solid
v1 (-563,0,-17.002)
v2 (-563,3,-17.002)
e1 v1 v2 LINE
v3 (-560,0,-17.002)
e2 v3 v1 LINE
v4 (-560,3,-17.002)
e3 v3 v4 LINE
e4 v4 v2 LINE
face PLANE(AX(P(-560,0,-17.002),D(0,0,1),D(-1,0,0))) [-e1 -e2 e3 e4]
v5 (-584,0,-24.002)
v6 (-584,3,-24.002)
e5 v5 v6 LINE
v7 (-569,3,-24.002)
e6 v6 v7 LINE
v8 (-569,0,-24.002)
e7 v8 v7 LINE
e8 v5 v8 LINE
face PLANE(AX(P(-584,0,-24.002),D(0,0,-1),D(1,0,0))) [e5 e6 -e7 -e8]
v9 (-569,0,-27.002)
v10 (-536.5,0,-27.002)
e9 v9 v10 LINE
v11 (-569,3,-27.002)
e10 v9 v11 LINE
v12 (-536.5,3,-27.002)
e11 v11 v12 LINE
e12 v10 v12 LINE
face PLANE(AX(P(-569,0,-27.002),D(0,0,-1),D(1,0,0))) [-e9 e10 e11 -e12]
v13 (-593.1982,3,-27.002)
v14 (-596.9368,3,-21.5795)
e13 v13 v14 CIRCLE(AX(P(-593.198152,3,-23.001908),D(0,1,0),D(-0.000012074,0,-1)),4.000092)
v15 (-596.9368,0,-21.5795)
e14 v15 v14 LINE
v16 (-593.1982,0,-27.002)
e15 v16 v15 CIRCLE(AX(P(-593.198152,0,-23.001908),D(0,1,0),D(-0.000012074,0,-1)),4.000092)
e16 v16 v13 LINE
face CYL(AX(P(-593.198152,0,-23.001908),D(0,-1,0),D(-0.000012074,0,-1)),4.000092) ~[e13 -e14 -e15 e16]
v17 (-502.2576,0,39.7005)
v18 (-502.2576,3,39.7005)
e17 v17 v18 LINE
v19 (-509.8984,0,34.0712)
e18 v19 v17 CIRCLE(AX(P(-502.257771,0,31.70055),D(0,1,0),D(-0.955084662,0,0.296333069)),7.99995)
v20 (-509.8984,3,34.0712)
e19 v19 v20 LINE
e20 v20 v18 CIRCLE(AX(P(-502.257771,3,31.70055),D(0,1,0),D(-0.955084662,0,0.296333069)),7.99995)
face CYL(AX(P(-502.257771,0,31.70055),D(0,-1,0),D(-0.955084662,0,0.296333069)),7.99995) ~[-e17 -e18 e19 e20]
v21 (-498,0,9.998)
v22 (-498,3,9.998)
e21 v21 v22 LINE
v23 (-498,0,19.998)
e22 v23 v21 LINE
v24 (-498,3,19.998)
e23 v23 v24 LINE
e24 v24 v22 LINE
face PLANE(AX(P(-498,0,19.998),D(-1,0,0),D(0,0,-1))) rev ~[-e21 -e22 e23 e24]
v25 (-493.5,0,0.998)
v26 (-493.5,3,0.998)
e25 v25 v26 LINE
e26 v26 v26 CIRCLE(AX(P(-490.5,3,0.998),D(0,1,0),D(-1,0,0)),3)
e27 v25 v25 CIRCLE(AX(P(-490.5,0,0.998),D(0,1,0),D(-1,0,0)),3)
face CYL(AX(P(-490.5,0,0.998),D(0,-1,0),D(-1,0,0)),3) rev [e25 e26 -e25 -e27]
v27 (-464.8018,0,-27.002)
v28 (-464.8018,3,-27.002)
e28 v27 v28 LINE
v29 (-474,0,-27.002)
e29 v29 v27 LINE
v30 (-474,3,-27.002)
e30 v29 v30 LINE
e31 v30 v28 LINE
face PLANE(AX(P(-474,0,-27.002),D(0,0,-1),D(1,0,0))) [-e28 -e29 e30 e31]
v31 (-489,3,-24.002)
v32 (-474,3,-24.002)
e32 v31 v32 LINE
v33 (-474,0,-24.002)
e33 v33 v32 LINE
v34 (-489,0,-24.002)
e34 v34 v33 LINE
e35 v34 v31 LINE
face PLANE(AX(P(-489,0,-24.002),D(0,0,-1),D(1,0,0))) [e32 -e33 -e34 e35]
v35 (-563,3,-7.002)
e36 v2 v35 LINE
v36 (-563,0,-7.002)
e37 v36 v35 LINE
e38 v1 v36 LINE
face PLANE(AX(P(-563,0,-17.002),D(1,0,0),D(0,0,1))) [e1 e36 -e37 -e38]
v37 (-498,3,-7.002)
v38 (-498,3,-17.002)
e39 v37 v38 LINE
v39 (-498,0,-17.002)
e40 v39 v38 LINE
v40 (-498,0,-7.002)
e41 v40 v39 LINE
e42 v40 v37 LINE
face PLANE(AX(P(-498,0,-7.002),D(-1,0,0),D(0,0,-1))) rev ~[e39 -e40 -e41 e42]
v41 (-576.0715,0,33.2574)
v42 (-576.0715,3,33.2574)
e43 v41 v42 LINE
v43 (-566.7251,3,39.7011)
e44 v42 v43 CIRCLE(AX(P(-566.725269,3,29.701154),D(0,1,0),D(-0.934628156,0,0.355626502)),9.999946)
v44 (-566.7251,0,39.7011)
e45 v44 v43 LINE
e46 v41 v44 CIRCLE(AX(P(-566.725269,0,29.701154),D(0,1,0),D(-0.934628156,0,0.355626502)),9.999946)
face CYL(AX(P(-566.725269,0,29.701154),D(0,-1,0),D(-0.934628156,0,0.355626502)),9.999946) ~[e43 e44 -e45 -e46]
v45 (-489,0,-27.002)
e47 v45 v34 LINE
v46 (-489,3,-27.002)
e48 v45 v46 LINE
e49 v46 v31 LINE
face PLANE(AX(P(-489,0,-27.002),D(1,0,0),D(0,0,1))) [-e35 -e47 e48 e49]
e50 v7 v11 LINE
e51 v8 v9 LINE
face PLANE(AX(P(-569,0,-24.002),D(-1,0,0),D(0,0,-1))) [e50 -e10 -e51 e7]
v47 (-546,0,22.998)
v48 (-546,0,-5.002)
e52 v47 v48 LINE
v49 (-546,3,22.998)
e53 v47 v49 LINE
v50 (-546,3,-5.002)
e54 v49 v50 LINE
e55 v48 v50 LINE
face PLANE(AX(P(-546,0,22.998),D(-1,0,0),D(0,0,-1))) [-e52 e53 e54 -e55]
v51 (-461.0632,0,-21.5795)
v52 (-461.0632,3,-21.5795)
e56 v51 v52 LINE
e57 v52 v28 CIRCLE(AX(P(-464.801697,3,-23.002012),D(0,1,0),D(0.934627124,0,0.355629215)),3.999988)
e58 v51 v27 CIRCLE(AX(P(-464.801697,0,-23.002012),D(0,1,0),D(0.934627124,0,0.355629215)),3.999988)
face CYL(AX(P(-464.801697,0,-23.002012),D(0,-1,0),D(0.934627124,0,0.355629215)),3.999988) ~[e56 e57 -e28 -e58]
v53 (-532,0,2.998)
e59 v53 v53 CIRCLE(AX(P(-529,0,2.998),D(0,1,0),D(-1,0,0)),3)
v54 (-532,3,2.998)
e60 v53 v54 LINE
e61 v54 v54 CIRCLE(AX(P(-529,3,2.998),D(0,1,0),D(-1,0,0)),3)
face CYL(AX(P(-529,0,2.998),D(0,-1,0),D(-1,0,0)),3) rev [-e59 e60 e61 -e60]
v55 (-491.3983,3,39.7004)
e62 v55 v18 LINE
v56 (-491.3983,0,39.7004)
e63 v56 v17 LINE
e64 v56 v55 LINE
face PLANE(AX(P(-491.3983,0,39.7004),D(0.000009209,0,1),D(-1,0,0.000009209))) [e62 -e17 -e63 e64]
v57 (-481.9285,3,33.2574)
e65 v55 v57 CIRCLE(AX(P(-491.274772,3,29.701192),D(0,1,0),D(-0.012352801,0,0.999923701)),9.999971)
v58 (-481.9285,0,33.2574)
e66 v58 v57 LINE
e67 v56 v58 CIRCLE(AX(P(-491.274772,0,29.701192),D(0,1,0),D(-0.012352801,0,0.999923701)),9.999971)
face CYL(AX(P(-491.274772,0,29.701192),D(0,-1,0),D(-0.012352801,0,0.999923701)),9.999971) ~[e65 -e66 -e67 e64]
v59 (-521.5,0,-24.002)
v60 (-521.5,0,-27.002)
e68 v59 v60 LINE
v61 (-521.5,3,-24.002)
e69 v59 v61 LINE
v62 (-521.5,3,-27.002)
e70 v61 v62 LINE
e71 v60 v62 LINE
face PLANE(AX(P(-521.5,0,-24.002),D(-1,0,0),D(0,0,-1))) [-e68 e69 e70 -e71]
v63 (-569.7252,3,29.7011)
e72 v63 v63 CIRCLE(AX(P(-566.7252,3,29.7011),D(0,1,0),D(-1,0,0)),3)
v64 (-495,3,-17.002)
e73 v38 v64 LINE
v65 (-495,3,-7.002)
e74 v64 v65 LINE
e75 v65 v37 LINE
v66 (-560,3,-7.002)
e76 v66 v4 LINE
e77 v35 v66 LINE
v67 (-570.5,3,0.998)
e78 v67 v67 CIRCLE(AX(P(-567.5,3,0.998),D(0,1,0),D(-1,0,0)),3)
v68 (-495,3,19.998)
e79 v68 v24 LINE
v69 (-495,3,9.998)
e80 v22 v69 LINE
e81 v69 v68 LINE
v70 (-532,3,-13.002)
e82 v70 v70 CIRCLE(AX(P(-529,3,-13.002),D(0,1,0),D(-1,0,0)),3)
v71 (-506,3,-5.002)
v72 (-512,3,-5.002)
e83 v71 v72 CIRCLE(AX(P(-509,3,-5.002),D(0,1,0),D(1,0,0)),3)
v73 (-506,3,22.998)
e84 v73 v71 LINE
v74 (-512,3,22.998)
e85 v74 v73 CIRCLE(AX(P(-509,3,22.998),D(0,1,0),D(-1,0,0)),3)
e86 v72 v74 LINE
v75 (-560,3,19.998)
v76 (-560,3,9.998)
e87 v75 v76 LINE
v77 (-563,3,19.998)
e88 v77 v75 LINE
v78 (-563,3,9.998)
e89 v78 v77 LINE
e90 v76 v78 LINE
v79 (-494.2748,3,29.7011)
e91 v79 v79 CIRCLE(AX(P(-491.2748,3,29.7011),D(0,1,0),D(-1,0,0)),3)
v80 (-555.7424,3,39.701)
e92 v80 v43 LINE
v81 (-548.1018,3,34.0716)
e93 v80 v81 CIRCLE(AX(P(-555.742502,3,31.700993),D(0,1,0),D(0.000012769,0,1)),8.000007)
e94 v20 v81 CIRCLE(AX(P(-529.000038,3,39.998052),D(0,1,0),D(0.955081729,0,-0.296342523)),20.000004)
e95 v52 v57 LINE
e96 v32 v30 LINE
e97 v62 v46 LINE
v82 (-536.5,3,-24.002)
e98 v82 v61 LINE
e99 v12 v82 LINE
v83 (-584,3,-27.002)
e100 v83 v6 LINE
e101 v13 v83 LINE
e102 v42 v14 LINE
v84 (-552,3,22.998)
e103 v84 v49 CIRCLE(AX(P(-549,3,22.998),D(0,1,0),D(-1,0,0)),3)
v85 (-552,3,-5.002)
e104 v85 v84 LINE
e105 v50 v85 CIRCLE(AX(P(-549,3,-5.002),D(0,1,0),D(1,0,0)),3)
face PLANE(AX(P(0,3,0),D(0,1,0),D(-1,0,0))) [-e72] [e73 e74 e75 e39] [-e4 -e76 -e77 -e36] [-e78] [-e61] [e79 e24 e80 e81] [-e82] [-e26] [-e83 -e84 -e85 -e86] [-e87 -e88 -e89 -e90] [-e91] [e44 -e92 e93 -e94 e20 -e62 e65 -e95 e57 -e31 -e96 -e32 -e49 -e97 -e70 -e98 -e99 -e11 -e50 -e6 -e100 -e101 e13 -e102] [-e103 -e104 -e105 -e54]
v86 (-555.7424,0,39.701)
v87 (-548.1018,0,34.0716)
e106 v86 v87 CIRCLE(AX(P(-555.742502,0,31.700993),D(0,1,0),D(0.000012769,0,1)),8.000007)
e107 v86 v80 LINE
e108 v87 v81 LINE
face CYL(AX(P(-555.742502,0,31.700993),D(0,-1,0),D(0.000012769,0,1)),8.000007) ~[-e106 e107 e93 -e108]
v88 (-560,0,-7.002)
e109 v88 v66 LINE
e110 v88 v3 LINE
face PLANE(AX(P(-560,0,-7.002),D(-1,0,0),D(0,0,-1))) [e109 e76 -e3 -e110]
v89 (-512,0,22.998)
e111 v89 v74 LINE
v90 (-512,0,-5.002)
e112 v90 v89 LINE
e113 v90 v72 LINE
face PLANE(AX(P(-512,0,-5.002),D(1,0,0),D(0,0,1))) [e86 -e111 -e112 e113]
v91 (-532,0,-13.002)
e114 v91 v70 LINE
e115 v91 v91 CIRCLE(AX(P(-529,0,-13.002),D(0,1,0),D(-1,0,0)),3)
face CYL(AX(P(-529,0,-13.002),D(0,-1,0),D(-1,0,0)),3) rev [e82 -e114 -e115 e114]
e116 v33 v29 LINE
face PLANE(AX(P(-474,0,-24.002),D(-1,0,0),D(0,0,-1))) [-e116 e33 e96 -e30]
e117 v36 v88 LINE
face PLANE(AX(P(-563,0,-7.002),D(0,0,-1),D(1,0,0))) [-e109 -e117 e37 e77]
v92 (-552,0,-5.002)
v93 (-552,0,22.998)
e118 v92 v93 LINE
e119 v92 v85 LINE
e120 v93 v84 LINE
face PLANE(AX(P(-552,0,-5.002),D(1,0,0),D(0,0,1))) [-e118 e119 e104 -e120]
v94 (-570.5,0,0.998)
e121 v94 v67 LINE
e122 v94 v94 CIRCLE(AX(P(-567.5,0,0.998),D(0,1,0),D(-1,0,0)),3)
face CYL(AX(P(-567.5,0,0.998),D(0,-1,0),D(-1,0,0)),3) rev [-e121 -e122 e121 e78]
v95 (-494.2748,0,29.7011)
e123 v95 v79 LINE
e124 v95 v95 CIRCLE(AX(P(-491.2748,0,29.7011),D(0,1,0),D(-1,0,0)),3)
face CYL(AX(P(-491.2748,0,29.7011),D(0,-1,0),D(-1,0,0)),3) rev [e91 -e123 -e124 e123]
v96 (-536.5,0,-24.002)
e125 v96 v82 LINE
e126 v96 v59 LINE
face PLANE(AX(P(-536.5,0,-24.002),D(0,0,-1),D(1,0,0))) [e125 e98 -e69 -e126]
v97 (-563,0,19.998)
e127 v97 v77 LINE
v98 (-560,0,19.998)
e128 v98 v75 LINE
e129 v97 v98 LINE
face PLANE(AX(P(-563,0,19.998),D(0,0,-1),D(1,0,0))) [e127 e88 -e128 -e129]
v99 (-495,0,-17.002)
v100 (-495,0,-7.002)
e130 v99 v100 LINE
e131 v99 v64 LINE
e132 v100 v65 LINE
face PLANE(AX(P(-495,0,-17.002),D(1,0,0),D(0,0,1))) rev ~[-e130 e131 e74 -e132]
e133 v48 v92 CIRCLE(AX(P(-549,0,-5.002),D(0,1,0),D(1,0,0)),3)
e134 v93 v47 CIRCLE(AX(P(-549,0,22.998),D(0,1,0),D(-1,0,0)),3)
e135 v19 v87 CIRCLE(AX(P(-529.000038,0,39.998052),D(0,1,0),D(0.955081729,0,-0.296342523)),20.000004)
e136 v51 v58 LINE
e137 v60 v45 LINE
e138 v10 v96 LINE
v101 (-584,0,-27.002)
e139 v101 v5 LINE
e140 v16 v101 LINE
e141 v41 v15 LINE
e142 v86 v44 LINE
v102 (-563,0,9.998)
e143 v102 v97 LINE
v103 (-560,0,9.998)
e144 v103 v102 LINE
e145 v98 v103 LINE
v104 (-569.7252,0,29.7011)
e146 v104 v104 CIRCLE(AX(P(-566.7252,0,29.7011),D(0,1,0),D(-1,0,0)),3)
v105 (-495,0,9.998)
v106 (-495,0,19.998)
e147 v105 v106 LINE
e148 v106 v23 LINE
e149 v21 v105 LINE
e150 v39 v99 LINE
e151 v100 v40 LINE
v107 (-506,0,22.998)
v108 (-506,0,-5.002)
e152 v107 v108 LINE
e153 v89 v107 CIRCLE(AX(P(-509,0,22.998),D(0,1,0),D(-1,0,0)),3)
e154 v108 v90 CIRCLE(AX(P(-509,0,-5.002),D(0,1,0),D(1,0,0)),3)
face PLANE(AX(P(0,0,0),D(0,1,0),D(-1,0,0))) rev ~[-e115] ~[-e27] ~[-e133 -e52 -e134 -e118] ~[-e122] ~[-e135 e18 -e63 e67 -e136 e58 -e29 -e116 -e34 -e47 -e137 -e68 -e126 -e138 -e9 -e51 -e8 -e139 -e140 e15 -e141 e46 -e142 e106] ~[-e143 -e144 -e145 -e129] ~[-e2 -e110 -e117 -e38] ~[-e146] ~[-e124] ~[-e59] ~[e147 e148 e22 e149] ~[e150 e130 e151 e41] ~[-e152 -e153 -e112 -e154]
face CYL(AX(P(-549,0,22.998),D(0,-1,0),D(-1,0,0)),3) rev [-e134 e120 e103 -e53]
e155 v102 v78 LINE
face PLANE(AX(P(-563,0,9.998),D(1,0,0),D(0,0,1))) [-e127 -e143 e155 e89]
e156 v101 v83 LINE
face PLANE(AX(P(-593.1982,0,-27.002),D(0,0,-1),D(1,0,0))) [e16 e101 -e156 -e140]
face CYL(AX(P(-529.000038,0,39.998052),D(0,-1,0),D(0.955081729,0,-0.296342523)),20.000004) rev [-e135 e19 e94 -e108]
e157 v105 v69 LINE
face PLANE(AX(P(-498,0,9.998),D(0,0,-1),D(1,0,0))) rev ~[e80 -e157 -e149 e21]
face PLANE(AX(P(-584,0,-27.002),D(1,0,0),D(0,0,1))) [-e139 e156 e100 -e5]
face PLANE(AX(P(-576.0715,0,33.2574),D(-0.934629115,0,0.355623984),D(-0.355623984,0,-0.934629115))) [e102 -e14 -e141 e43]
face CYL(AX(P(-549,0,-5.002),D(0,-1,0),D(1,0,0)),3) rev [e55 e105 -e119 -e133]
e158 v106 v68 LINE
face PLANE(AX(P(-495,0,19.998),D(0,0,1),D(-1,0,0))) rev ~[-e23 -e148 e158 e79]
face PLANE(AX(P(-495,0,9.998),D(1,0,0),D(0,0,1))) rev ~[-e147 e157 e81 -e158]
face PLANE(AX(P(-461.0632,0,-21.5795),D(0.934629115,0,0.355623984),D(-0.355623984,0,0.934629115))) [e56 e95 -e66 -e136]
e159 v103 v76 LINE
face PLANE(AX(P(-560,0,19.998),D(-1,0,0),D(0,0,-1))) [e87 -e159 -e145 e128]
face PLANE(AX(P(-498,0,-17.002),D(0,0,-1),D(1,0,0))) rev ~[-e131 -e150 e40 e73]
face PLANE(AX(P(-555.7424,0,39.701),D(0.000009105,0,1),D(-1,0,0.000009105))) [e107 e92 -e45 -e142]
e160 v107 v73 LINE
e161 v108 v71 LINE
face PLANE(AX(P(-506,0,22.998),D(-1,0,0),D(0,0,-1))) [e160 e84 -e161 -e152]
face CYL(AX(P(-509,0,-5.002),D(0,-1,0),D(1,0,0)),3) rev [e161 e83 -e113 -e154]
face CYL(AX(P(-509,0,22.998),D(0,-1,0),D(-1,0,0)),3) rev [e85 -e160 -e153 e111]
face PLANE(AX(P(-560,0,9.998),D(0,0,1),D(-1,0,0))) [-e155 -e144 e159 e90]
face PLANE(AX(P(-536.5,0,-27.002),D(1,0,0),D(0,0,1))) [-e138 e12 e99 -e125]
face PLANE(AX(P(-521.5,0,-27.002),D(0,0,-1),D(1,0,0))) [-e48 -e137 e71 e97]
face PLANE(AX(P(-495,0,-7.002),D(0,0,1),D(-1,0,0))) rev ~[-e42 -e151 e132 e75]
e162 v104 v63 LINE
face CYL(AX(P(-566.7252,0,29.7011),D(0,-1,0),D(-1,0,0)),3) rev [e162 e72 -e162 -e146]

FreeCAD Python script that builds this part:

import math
import FreeCAD as App
import Part
import Sketcher

doc = App.newDocument("Part")
body = doc.addObject("PartDesign::Body", "Body")

sketch1 = doc.addObject("Sketcher::SketchObject", "Sketch")
body.addObject(sketch1)
sketch1.AttachmentSupport = (doc.XZ_Plane, [""])
sketch1.MapMode = "FlatFace"
sketch1.addGeometry([
    Part.LineSegment(App.Vector(-502.2576, 39.7005, 0), App.Vector(-491.3983, 39.7004, 0)),
    Part.ArcOfCircle(Part.Circle(App.Vector(-491.2748, 29.7011, 0), App.Vector(0, 0, 1), 10.000063), math.radians(20.831996), math.radians(90.707616)),
    Part.LineSegment(App.Vector(-481.9285, 33.2574, 0), App.Vector(-461.0632, -21.5795, 0)),
    Part.ArcOfCircle(Part.Circle(App.Vector(-464.8018, -23.002, 0), App.Vector(0, 0, 1), 4.00008), math.radians(-90), math.radians(20.831321)),
    Part.LineSegment(App.Vector(-464.8018, -27.002, 0), App.Vector(-474, -27.002, 0)),
    Part.LineSegment(App.Vector(-474, -27.002, 0), App.Vector(-474, -24.002, 0)),
    Part.LineSegment(App.Vector(-474, -24.002, 0), App.Vector(-489, -24.002, 0)),
    Part.LineSegment(App.Vector(-489, -24.002, 0), App.Vector(-489, -27.002, 0)),
    Part.LineSegment(App.Vector(-489, -27.002, 0), App.Vector(-521.5, -27.002, 0)),
    Part.LineSegment(App.Vector(-521.5, -27.002, 0), App.Vector(-521.5, -24.002, 0)),
    Part.LineSegment(App.Vector(-521.5, -24.002, 0), App.Vector(-536.5, -24.002, 0)),
    Part.LineSegment(App.Vector(-536.5, -24.002, 0), App.Vector(-536.5, -27.002, 0)),
    Part.LineSegment(App.Vector(-536.5, -27.002, 0), App.Vector(-569, -27.002, 0)),
    Part.LineSegment(App.Vector(-569, -27.002, 0), App.Vector(-569, -24.002, 0)),
    Part.LineSegment(App.Vector(-569, -24.002, 0), App.Vector(-584, -24.002, 0)),
    Part.LineSegment(App.Vector(-584, -24.002, 0), App.Vector(-584, -27.002, 0)),
    Part.LineSegment(App.Vector(-584, -27.002, 0), App.Vector(-593.1982, -27.002, 0)),
    Part.ArcOfCircle(Part.Circle(App.Vector(-593.1982, -23.002, 0), App.Vector(0, 0, 1), 4), math.radians(159.168679), math.radians(270)),
    Part.LineSegment(App.Vector(-596.9368, -21.5795, 0), App.Vector(-576.0715, 33.2574, 0)),
    Part.ArcOfCircle(Part.Circle(App.Vector(-566.7252, 29.7011, 0), App.Vector(0, 0, 1), 10.00003), math.radians(89.999427), math.radians(159.168004)),
    Part.LineSegment(App.Vector(-566.7251, 39.7011, 0), App.Vector(-555.7424, 39.701, 0)),
    Part.ArcOfCircle(Part.Circle(App.Vector(-555.7425, 31.701, 0), App.Vector(0, 0, 1), 8), math.radians(17.237002), math.radians(89.999284)),
    Part.ArcOfCircle(Part.Circle(App.Vector(-529, 39.998, 0), App.Vector(0, 0, 1), 19.999952), math.radians(-162.763315), math.radians(-17.23795)),
    Part.ArcOfCircle(Part.Circle(App.Vector(-502.2577, 31.7005, 0), App.Vector(0, 0, 1), 8.000032), math.radians(89.999284), math.radians(162.762314)),
    Part.LineSegment(App.Vector(-498, -7.002, 0), App.Vector(-498, -17.002, 0)),
    Part.LineSegment(App.Vector(-498, -17.002, 0), App.Vector(-495, -17.002, 0)),
    Part.LineSegment(App.Vector(-495, -17.002, 0), App.Vector(-495, -7.002, 0)),
    Part.LineSegment(App.Vector(-495, -7.002, 0), App.Vector(-498, -7.002, 0)),
    Part.Circle(App.Vector(-490.5, 0.998, 0), App.Vector(0, 0, 1), 3),
    Part.ArcOfCircle(Part.Circle(App.Vector(-509, -5.002, 0), App.Vector(0, 0, 1), 3), math.radians(180), math.radians(360)),
    Part.LineSegment(App.Vector(-506, -5.002, 0), App.Vector(-506, 22.998, 0)),
    Part.ArcOfCircle(Part.Circle(App.Vector(-509, 22.998, 0), App.Vector(0, 0, 1), 3), math.radians(0), math.radians(180)),
    Part.LineSegment(App.Vector(-512, 22.998, 0), App.Vector(-512, -5.002, 0)),
    Part.LineSegment(App.Vector(-498, 19.998, 0), App.Vector(-498, 9.998, 0)),
    Part.LineSegment(App.Vector(-498, 9.998, 0), App.Vector(-495, 9.998, 0)),
    Part.LineSegment(App.Vector(-495, 9.998, 0), App.Vector(-495, 19.998, 0)),
    Part.LineSegment(App.Vector(-495, 19.998, 0), App.Vector(-498, 19.998, 0)),
    Part.Circle(App.Vector(-491.2748, 29.7011, 0), App.Vector(0, 0, 1), 3),
    Part.Circle(App.Vector(-529, -13.002, 0), App.Vector(0, 0, 1), 3),
    Part.LineSegment(App.Vector(-560, -17.002, 0), App.Vector(-560, -7.002, 0)),
    Part.LineSegment(App.Vector(-560, -7.002, 0), App.Vector(-563, -7.002, 0)),
    Part.LineSegment(App.Vector(-563, -7.002, 0), App.Vector(-563, -17.002, 0)),
    Part.LineSegment(App.Vector(-563, -17.002, 0), App.Vector(-560, -17.002, 0)),
    Part.Circle(App.Vector(-529, 2.998, 0), App.Vector(0, 0, 1), 3),
    Part.LineSegment(App.Vector(-546, -5.002, 0), App.Vector(-546, 22.998, 0)),
    Part.ArcOfCircle(Part.Circle(App.Vector(-549, 22.998, 0), App.Vector(0, 0, 1), 3), math.radians(0), math.radians(180)),
    Part.LineSegment(App.Vector(-552, 22.998, 0), App.Vector(-552, -5.002, 0)),
    Part.ArcOfCircle(Part.Circle(App.Vector(-549, -5.002, 0), App.Vector(0, 0, 1), 3), math.radians(180), math.radians(360)),
    Part.Circle(App.Vector(-567.5, 0.998, 0), App.Vector(0, 0, 1), 3),
    Part.LineSegment(App.Vector(-560, 9.998, 0), App.Vector(-560, 19.998, 0)),
    Part.LineSegment(App.Vector(-560, 19.998, 0), App.Vector(-563, 19.998, 0)),
    Part.LineSegment(App.Vector(-563, 19.998, 0), App.Vector(-563, 9.998, 0)),
    Part.LineSegment(App.Vector(-563, 9.998, 0), App.Vector(-560, 9.998, 0)),
    Part.Circle(App.Vector(-566.7252, 29.7011, 0), App.Vector(0, 0, 1), 3),
], False)
sketch1.addConstraint([
    Sketcher.Constraint("Coincident", 0, 2, 1, 2),
    Sketcher.Constraint("Tangent", 1, 1, 2, 1),
    Sketcher.Constraint("Tangent", 2, 2, 3, 2),
    Sketcher.Constraint("Tangent", 3, 1, 4, 1),
    Sketcher.Constraint("Coincident", 4, 2, 5, 1),
    Sketcher.Constraint("Coincident", 5, 2, 6, 1),
    Sketcher.Constraint("Coincident", 6, 2, 7, 1),
    Sketcher.Constraint("Coincident", 7, 2, 8, 1),
    Sketcher.Constraint("Coincident", 8, 2, 9, 1),
    Sketcher.Constraint("Coincident", 9, 2, 10, 1),
    Sketcher.Constraint("Coincident", 10, 2, 11, 1),
    Sketcher.Constraint("Coincident", 11, 2, 12, 1),
    Sketcher.Constraint("Coincident", 12, 2, 13, 1),
    Sketcher.Constraint("Coincident", 13, 2, 14, 1),
    Sketcher.Constraint("Coincident", 14, 2, 15, 1),
    Sketcher.Constraint("Coincident", 15, 2, 16, 1),
    Sketcher.Constraint("Tangent", 16, 2, 17, 2),
    Sketcher.Constraint("Tangent", 17, 1, 18, 1),
    Sketcher.Constraint("Tangent", 18, 2, 19, 2),
    Sketcher.Constraint("Tangent", 19, 1, 20, 1),
    Sketcher.Constraint("Tangent", 20, 2, 21, 2),
    Sketcher.Constraint("Tangent", 21, 1, 22, 1),
    Sketcher.Constraint("Tangent", 22, 2, 23, 2),
    Sketcher.Constraint("Tangent", 23, 1, 0, 1),
    Sketcher.Constraint("Coincident", 24, 2, 25, 1),
    Sketcher.Constraint("Coincident", 25, 2, 26, 1),
    Sketcher.Constraint("Coincident", 26, 2, 27, 1),
    Sketcher.Constraint("Coincident", 27, 2, 24, 1),
    Sketcher.Constraint("Tangent", 29, 2, 30, 1),
    Sketcher.Constraint("Tangent", 30, 2, 31, 1),
    Sketcher.Constraint("Tangent", 31, 2, 32, 1),
    Sketcher.Constraint("Tangent", 32, 2, 29, 1),
    Sketcher.Constraint("Coincident", 33, 2, 34, 1),
    Sketcher.Constraint("Coincident", 34, 2, 35, 1),
    Sketcher.Constraint("Coincident", 35, 2, 36, 1),
    Sketcher.Constraint("Coincident", 36, 2, 33, 1),
    Sketcher.Constraint("Coincident", 39, 2, 40, 1),
    Sketcher.Constraint("Coincident", 40, 2, 41, 1),
    Sketcher.Constraint("Coincident", 41, 2, 42, 1),
    Sketcher.Constraint("Coincident", 42, 2, 39, 1),
    Sketcher.Constraint("Tangent", 44, 2, 45, 1),
    Sketcher.Constraint("Tangent", 45, 2, 46, 1),
    Sketcher.Constraint("Tangent", 46, 2, 47, 1),
    Sketcher.Constraint("Tangent", 47, 2, 44, 1),
    Sketcher.Constraint("Coincident", 49, 2, 50, 1),
    Sketcher.Constraint("Coincident", 50, 2, 51, 1),
    Sketcher.Constraint("Coincident", 51, 2, 52, 1),
    Sketcher.Constraint("Coincident", 52, 2, 49, 1),
    Sketcher.Constraint("Horizontal", 0),
    Sketcher.Constraint("Horizontal", 4),
    Sketcher.Constraint("Vertical", 5),
    Sketcher.Constraint("Horizontal", 6),
    Sketcher.Constraint("Vertical", 7),
    Sketcher.Constraint("Horizontal", 8),
    Sketcher.Constraint("Vertical", 9),
    Sketcher.Constraint("Horizontal", 10),
    Sketcher.Constraint("Vertical", 11),
    Sketcher.Constraint("Horizontal", 12),
    Sketcher.Constraint("Vertical", 13),
    Sketcher.Constraint("Horizontal", 14),
    Sketcher.Constraint("Vertical", 15),
    Sketcher.Constraint("Horizontal", 16),
    Sketcher.Constraint("Horizontal", 20),
    Sketcher.Constraint("Vertical", 24),
    Sketcher.Constraint("Horizontal", 25),
    Sketcher.Constraint("Vertical", 26),
    Sketcher.Constraint("Horizontal", 27),
    Sketcher.Constraint("Vertical", 30),
    Sketcher.Constraint("Vertical", 32),
    Sketcher.Constraint("Vertical", 33),
    Sketcher.Constraint("Horizontal", 34),
    Sketcher.Constraint("Vertical", 35),
    Sketcher.Constraint("Horizontal", 36),
    Sketcher.Constraint("Vertical", 39),
    Sketcher.Constraint("Horizontal", 40),
    Sketcher.Constraint("Vertical", 41),
    Sketcher.Constraint("Horizontal", 42),
    Sketcher.Constraint("Vertical", 44),
    Sketcher.Constraint("Vertical", 46),
    Sketcher.Constraint("Vertical", 49),
    Sketcher.Constraint("Horizontal", 50),
    Sketcher.Constraint("Vertical", 51),
    Sketcher.Constraint("Horizontal", 52),
    Sketcher.Constraint("Coincident", 37, 3, 1, 3),
    Sketcher.Constraint("Coincident", 53, 3, 19, 3),
    Sketcher.Constraint("Equal", 3, 17),
    Sketcher.Constraint("Equal", 1, 19),
    Sketcher.Constraint("Equal", 21, 23),
    Sketcher.Constraint("Equal", 28, 29),
    Sketcher.Constraint("Equal", 31, 37),
    Sketcher.Constraint("Equal", 37, 38),
    Sketcher.Constraint("Equal", 38, 43),
    Sketcher.Constraint("Equal", 43, 45),
    Sketcher.Constraint("Equal", 47, 48),
    Sketcher.Constraint("Equal", 48, 53),
    Sketcher.Constraint("Horizontal", 3, 3, 17, 3),
    Sketcher.Constraint("Horizontal", 1, 3, 19, 3),
    Sketcher.Constraint("Horizontal", 31, 3, 45, 3),
    Sketcher.Constraint("Horizontal", 29, 3, 47, 3),
    Sketcher.Constraint("Horizontal", 28, 3, 48, 3),
    Sketcher.Constraint("Horizontal", 4, 2, 7, 2),
    Sketcher.Constraint("Horizontal", 6, 2, 9, 2),
    Sketcher.Constraint("Horizontal", 8, 2, 11, 2),
    Sketcher.Constraint("Horizontal", 10, 2, 13, 2),
    Sketcher.Constraint("Horizontal", 2, 2, 17, 1),
    Sketcher.Constraint("Horizontal", 27, 2, 39, 2),
    Sketcher.Constraint("Horizontal", 25, 2, 41, 2),
    Sketcher.Constraint("Horizontal", 36, 2, 49, 2),
    Sketcher.Constraint("Horizontal", 34, 2, 51, 2),
    Sketcher.Constraint("Vertical", 22, 3, 38, 3),
    Sketcher.Constraint("Vertical", 38, 3, 43, 3),
    Sketcher.Constraint("Vertical", 27, 2, 33, 2),
    Sketcher.Constraint("Vertical", 26, 2, 34, 2),
    Sketcher.Constraint("Vertical", 42, 2, 49, 2),
    Sketcher.Constraint("Vertical", 41, 2, 50, 2),
    Sketcher.Constraint("Equal", 6, 10),
    Sketcher.Constraint("Equal", 8, 12),
    Sketcher.Constraint("Equal", 10, 14),
    Sketcher.Constraint("Equal", 4, 16),
    Sketcher.Constraint("Equal", 36, 40),
    Sketcher.Constraint("Equal", 52, 5),
    Sketcher.Constraint("Equal", 26, 33),
    Sketcher.Constraint("Diameter", 28, 6.0),
    Sketcher.Constraint("Radius", 1, 10.0),
    Sketcher.Constraint("Radius", 3, 4.0),
    Sketcher.Constraint("Radius", 21, 8.0),
    Sketcher.Constraint("Radius", 22, 20.0),
    Sketcher.Constraint("DistanceX", 6, 2, 6, 1, 15.0),
    Sketcher.Constraint("DistanceX", 25, 1, 25, 2, 3.0),
    Sketcher.Constraint("DistanceY", 24, 2, 24, 1, 10.0),
    Sketcher.Constraint("DistanceY", 30, 1, 30, 2, 28.0),
    Sketcher.Constraint("DistanceX", 8, 2, 8, 1, 32.5),
    Sketcher.Constraint("DistanceX", 22, 3, -1, 1, 529.0),
    Sketcher.Constraint("DistanceX", 29, 3, -1, 1, 509.0),
    Sketcher.Constraint("DistanceX", 45, 3, -1, 1, 549.0),
    Sketcher.Constraint("DistanceX", 4, 2, -1, 1, 474.0),
    Sketcher.Constraint("DistanceX", 24, 2, -1, 1, 498.0),
    Sketcher.Constraint("DistanceX", 39, 2, -1, 1, 560.0),
    Sketcher.Constraint("DistanceX", 28, 3, -1, 1, 490.5),
    Sketcher.Constraint("DistanceX", 48, 3, -1, 1, 567.5),
    Sketcher.Constraint("DistanceX", 0, 1, 0, 2, 10.8593),
    Sketcher.Constraint("DistanceX", 4, 2, 4, 1, 9.1982),
    Sketcher.Constraint("DistanceX", 20, 1, 20, 2, 10.9827),
    Sketcher.Constraint("DistanceY", -1, 1, 1, 3, 29.701),
    Sketcher.Constraint("DistanceY", 3, 3, -1, 1, 23.002),
    Sketcher.Constraint("DistanceY", -1, 1, 22, 3, 39.998),
    Sketcher.Constraint("DistanceY", -1, 1, 28, 3, 0.998),
    Sketcher.Constraint("DistanceY", 29, 3, -1, 1, 5.002),
    Sketcher.Constraint("DistanceY", 38, 3, -1, 1, 13.002),
    Sketcher.Constraint("DistanceY", -1, 1, 43, 3, 2.998),
    Sketcher.Constraint("DistanceY", 24, 2, -1, 1, 17.002),
    Sketcher.Constraint("DistanceY", -1, 1, 33, 2, 9.998),
])
pad1 = doc.addObject("PartDesign::Pad", "Pad")
body.addObject(pad1)
pad1.Profile = sketch1
pad1.Length = 3
pad1.Reversed = True

doc.recompute()
